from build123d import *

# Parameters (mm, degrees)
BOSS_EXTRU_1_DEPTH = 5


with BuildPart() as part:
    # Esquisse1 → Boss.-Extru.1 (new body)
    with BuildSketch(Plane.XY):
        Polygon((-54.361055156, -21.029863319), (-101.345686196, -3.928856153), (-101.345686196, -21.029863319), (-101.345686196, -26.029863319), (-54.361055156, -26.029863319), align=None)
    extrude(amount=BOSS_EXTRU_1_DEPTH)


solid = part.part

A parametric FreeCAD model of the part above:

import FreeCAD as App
import Part
import Sketcher
Q = App.Units.Quantity

doc = App.newDocument("Part")
body = doc.addObject("PartDesign::Body", "Body")

# Sketch on XY plane
sketch1 = body.newObject("Sketcher::SketchObject", "Sketch")
sketch1.AttachmentSupport = (doc.getObject("XY_Plane"), [""])
sketch1.MapMode = "FlatFace"
sketch1.addGeometry([
    Part.LineSegment(App.Vector(-54, -21, 0), App.Vector(-101, -4, 0)),
    Part.LineSegment(App.Vector(-101, -4, 0), App.Vector(-101, -26, 0)),
    Part.LineSegment(App.Vector(-101, -26, 0), App.Vector(-54, -26, 0)),
    Part.LineSegment(App.Vector(-54, -26, 0), App.Vector(-54, -21, 0)),
], False)
sketch1.addConstraint([
    Sketcher.Constraint("Coincident", 0, 2, 1, 1),
    Sketcher.Constraint("Coincident", 1, 2, 2, 1),
    Sketcher.Constraint("Coincident", 2, 2, 3, 1),
    Sketcher.Constraint("Coincident", 3, 2, 0, 1),
    Sketcher.Constraint("Vertical", 1),
    Sketcher.Constraint("Horizontal", 2),
    Sketcher.Constraint("Vertical", 3),
    Sketcher.Constraint("DistanceY", 3, 1, 3, 2, Q("5 mm")),
    Sketcher.Constraint("Angle", 0, Q("160 deg")),
    Sketcher.Constraint("Distance", 0, Q("50 mm")),
    Sketcher.Constraint("DistanceX", 0, 2, -1, 1, Q("101.345686 mm")),
    Sketcher.Constraint("DistanceY", 0, 2, -1, 1, Q("3.928856 mm")),
])
pad1 = body.newObject("PartDesign::Pad", "Pad")
pad1.Profile = sketch1
pad1.Length = 5

doc.recompute()
